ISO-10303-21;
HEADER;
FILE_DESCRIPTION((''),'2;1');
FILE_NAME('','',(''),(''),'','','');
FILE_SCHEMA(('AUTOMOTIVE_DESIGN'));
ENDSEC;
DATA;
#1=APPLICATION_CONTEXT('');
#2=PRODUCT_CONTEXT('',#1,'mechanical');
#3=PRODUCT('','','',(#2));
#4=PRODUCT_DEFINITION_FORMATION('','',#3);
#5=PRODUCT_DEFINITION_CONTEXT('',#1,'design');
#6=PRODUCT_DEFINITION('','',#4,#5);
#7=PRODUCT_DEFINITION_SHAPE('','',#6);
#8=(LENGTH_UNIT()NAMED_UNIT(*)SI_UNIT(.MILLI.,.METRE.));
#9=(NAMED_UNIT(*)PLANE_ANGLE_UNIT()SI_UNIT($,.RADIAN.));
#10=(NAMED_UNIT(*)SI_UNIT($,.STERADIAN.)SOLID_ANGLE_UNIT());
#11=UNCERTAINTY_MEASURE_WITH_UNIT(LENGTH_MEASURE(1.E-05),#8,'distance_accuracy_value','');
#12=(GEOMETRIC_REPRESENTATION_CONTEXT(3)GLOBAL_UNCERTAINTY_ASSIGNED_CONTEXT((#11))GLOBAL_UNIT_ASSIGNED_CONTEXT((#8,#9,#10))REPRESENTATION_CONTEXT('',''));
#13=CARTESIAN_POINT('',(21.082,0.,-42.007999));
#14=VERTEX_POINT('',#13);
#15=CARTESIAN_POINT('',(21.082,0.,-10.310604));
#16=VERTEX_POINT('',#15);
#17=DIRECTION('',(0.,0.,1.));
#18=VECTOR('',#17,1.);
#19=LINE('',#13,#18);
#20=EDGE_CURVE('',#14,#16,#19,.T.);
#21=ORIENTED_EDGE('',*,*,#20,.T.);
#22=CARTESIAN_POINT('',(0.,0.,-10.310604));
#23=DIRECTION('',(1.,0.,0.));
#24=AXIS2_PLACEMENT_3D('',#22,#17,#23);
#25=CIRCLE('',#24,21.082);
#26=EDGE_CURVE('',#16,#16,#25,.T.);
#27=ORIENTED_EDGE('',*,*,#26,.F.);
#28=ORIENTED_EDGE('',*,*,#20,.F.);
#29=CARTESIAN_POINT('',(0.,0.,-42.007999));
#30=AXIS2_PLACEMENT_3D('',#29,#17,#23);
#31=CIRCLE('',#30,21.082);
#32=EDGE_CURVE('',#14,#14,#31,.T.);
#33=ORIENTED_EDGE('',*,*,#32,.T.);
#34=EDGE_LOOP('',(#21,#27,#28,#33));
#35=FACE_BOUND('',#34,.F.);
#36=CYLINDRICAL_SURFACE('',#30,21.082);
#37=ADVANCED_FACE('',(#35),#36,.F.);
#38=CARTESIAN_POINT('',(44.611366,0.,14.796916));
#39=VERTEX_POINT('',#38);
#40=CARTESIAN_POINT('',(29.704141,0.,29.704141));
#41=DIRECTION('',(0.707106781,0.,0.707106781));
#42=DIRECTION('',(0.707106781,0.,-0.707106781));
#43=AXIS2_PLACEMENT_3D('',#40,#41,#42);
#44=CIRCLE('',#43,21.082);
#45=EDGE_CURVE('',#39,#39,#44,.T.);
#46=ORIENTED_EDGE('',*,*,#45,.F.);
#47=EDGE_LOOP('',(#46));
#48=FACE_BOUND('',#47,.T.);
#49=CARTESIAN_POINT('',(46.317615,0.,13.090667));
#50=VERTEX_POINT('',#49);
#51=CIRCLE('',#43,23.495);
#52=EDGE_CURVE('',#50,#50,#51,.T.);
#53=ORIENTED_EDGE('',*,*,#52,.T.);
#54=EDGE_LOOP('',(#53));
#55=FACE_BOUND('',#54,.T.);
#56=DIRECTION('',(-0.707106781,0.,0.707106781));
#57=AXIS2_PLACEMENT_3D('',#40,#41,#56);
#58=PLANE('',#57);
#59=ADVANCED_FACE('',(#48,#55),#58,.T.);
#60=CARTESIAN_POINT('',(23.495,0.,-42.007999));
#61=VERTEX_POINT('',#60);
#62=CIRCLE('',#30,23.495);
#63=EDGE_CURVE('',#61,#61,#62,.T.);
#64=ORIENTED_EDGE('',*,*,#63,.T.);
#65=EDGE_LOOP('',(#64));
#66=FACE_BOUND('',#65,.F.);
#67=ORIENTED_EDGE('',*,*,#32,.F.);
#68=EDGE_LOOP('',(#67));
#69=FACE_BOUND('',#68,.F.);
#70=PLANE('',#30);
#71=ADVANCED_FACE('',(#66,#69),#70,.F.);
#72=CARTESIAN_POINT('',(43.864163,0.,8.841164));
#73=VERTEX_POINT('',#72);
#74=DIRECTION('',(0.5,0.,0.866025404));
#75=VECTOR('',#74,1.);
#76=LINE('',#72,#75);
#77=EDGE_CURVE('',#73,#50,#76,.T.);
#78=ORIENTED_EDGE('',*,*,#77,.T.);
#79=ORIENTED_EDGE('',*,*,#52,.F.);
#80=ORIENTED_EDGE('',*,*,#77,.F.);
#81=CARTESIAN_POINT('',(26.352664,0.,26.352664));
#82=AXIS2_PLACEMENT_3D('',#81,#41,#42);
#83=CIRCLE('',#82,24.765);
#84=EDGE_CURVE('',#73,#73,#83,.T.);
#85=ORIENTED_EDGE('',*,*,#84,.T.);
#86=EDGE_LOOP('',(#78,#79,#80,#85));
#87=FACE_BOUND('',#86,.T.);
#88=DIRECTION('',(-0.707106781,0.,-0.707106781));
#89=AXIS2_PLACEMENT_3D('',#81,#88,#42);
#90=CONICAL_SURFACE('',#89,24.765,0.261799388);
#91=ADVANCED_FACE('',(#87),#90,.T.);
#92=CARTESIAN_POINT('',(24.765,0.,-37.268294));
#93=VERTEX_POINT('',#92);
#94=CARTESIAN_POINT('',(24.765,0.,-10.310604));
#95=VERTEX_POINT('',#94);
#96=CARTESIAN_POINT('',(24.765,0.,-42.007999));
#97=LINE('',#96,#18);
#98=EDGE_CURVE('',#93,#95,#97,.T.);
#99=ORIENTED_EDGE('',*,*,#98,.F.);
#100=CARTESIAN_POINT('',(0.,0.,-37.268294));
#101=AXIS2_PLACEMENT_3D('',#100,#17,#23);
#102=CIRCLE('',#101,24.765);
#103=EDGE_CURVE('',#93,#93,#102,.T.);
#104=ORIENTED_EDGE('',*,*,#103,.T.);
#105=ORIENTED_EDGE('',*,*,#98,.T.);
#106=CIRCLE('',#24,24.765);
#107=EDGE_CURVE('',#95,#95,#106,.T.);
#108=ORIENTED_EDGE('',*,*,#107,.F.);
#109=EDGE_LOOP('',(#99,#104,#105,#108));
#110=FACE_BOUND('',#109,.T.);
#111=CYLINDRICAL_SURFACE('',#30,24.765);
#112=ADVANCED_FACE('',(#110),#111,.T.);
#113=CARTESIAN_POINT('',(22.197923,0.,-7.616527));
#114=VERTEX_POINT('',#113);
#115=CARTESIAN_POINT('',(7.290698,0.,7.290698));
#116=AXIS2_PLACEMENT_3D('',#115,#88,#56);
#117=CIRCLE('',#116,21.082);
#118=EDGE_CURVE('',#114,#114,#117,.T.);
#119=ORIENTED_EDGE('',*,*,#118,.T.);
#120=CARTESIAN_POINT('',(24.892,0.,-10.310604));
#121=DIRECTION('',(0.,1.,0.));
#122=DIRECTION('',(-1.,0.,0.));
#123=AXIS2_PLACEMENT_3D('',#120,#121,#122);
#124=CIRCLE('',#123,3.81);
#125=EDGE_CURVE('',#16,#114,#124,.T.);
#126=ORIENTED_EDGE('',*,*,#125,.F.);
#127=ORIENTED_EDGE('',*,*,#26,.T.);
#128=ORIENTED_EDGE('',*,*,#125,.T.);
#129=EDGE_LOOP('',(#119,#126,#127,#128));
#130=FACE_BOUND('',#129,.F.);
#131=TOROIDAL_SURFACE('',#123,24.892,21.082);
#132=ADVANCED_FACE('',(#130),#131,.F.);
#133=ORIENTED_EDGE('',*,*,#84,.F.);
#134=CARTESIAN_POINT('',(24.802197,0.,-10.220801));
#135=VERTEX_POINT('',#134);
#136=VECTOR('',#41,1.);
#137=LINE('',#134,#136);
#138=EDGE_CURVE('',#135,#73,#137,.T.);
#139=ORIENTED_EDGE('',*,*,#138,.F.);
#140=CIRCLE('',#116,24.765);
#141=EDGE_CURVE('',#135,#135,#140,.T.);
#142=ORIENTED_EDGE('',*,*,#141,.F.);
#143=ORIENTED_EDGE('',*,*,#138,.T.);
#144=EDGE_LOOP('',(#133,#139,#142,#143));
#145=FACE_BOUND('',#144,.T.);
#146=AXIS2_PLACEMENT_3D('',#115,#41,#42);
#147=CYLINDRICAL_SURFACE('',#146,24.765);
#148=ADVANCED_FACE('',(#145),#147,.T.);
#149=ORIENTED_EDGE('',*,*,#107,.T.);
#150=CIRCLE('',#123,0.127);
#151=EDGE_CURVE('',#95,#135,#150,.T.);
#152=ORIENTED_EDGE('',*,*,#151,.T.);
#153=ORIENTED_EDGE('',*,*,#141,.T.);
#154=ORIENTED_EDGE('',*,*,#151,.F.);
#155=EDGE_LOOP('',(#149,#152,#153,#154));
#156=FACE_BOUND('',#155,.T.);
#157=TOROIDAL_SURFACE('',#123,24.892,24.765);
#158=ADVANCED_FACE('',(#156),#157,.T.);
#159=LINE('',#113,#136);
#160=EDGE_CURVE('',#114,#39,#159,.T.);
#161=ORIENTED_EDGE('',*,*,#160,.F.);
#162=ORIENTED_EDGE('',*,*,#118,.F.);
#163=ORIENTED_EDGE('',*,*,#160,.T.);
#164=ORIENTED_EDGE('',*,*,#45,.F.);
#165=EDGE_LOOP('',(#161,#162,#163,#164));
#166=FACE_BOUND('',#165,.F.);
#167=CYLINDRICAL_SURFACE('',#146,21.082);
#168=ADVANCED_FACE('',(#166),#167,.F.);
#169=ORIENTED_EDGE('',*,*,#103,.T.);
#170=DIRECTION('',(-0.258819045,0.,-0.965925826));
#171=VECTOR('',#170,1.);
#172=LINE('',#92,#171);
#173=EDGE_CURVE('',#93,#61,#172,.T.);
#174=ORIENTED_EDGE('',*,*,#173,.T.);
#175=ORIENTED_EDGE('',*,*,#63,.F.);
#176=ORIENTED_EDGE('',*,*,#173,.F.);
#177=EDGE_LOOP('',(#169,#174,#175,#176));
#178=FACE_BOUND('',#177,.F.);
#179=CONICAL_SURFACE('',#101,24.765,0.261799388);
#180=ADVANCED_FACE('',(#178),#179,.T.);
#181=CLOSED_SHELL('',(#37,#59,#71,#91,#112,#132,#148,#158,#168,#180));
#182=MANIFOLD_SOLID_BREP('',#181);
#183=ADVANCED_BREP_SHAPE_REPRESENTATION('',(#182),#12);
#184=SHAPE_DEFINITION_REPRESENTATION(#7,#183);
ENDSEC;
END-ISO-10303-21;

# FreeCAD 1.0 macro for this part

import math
import FreeCAD as App
import Part
import Sketcher
Q = App.Units.Quantity


def edges_at(feature, points):
    """Names of the edges that pass closest to the given points."""
    edges = feature.Shape.Edges
    near = lambda p: min(range(len(edges)), key=lambda i: edges[i].distToShape(Part.Vertex(*p))[0])
    return sorted({f"Edge{near(p) + 1}" for p in points})

doc = App.newDocument("Part")
params = doc.addObject("Spreadsheet::Sheet", "Params")
for row, (alias, value) in enumerate([
    ("sketch1_diameter", "1.95 in"),
    ("sketch1_diameter2", "1.66 in"),
    ("sketch2_radius", "0.98 in"),
    ("chamfer_size", "4.739705 mm"),
    ("chamfer_size2", "0.05 in"),
    ("chamfer2_size", "4.739705 mm"),
    ("chamfer2_size2", "0.05 in"),
], start=1):
    params.set(f"A{row}", alias)
    params.set(f"B{row}", "=" + value)
    params.setAlias(f"B{row}", alias)

body = doc.addObject("PartDesign::Body", "Body")

# Sketch on XY plane
sketch1 = doc.addObject("Sketcher::SketchObject", "Sketch")
body.addObject(sketch1)
sketch1.AttachmentSupport = (doc.XY_Plane, [""])
sketch1.MapMode = "FlatFace"
sketch1.AttachmentOffset = App.Placement(App.Vector(0, 0, -42.007999), App.Rotation())
sketch1.addGeometry([
    Part.Circle(App.Vector(0, 0, 0), App.Vector(0, 0, 1), 24.765),
    Part.Circle(App.Vector(0, 0, 0), App.Vector(0, 0, 1), 21.082),
], False)
sketch1.addConstraint([
    Sketcher.Constraint("Coincident", 0, 3, -1, 1),
    Sketcher.Constraint("Coincident", 1, 3, -1, 1),
    Sketcher.Constraint("Diameter", 0, Q("1.95 in")),
    Sketcher.Constraint("Diameter", 1, Q("1.66 in")),
])
sketch1.setExpression("Constraints[2]", "Params.sketch1_diameter")
sketch1.setExpression("Constraints[3]", "Params.sketch1_diameter2")

# Sketch on XZ plane
sketch2 = doc.addObject("Sketcher::SketchObject", "Sketch001")
body.addObject(sketch2)
sketch2.AttachmentSupport = (doc.XZ_Plane, [""])
sketch2.MapMode = "FlatFace"
sketch2.addGeometry([
    Part.LineSegment(App.Vector(0, -42.007999, 0), App.Vector(0, -10.310604, 0)),
    Part.ArcOfCircle(Part.Circle(App.Vector(24.892, -10.310604, 0), App.Vector(0, 0, 1), 24.892), math.radians(135), math.radians(180)),
    Part.LineSegment(App.Vector(7.290698, 7.290698, 0), App.Vector(29.704141, 29.704141, 0)),
], False)
sketch2.addConstraint([
    Sketcher.Constraint("Tangent", 0, 2, 1, 2),
    Sketcher.Constraint("Tangent", 1, 1, 2, 1),
    Sketcher.Constraint("Vertical", 0),
    Sketcher.Constraint("PointOnObject", 0, 1, -2),
    Sketcher.Constraint("Radius", 1, Q("0.98 in")),
    Sketcher.Constraint("Angle", 2, Q("45 deg")),
    Sketcher.Constraint("DistanceY", 0, 1, -1, 1, Q("42.007999 mm")),
    Sketcher.Constraint("DistanceY", -1, 1, 1, 1, Q("7.290698 mm")),
    Sketcher.Constraint("DistanceX", -1, 1, 2, 2, Q("29.704141 mm")),
])
sketch2.setExpression("Constraints[4]", "Params.sketch2_radius")
doc.recompute()

additivepipe = doc.addObject("PartDesign::AdditivePipe", "AdditivePipe")
body.addObject(additivepipe)
additivepipe.Profile = sketch1
additivepipe.Spine = (sketch2, ["Edge1", "Edge2", "Edge3"])
doc.recompute()

chamfer = doc.addObject("PartDesign::Chamfer", "Chamfer")
body.addObject(chamfer)
chamfer.Base = (additivepipe, edges_at(additivepipe, [(12.193, 0, 47.216)]))
chamfer.ChamferType = "Two distances"
chamfer.setExpression("Size", "Params.chamfer_size")
chamfer.setExpression("Size2", "Params.chamfer_size2")
doc.recompute()

chamfer2 = doc.addObject("PartDesign::Chamfer", "Chamfer001")
body.addObject(chamfer2)
chamfer2.Base = (chamfer, edges_at(chamfer, [(-24.765, 0, -42.008)]))
chamfer2.ChamferType = "Two distances"
chamfer2.setExpression("Size", "Params.chamfer2_size")
chamfer2.setExpression("Size2", "Params.chamfer2_size2")

doc.recompute()
